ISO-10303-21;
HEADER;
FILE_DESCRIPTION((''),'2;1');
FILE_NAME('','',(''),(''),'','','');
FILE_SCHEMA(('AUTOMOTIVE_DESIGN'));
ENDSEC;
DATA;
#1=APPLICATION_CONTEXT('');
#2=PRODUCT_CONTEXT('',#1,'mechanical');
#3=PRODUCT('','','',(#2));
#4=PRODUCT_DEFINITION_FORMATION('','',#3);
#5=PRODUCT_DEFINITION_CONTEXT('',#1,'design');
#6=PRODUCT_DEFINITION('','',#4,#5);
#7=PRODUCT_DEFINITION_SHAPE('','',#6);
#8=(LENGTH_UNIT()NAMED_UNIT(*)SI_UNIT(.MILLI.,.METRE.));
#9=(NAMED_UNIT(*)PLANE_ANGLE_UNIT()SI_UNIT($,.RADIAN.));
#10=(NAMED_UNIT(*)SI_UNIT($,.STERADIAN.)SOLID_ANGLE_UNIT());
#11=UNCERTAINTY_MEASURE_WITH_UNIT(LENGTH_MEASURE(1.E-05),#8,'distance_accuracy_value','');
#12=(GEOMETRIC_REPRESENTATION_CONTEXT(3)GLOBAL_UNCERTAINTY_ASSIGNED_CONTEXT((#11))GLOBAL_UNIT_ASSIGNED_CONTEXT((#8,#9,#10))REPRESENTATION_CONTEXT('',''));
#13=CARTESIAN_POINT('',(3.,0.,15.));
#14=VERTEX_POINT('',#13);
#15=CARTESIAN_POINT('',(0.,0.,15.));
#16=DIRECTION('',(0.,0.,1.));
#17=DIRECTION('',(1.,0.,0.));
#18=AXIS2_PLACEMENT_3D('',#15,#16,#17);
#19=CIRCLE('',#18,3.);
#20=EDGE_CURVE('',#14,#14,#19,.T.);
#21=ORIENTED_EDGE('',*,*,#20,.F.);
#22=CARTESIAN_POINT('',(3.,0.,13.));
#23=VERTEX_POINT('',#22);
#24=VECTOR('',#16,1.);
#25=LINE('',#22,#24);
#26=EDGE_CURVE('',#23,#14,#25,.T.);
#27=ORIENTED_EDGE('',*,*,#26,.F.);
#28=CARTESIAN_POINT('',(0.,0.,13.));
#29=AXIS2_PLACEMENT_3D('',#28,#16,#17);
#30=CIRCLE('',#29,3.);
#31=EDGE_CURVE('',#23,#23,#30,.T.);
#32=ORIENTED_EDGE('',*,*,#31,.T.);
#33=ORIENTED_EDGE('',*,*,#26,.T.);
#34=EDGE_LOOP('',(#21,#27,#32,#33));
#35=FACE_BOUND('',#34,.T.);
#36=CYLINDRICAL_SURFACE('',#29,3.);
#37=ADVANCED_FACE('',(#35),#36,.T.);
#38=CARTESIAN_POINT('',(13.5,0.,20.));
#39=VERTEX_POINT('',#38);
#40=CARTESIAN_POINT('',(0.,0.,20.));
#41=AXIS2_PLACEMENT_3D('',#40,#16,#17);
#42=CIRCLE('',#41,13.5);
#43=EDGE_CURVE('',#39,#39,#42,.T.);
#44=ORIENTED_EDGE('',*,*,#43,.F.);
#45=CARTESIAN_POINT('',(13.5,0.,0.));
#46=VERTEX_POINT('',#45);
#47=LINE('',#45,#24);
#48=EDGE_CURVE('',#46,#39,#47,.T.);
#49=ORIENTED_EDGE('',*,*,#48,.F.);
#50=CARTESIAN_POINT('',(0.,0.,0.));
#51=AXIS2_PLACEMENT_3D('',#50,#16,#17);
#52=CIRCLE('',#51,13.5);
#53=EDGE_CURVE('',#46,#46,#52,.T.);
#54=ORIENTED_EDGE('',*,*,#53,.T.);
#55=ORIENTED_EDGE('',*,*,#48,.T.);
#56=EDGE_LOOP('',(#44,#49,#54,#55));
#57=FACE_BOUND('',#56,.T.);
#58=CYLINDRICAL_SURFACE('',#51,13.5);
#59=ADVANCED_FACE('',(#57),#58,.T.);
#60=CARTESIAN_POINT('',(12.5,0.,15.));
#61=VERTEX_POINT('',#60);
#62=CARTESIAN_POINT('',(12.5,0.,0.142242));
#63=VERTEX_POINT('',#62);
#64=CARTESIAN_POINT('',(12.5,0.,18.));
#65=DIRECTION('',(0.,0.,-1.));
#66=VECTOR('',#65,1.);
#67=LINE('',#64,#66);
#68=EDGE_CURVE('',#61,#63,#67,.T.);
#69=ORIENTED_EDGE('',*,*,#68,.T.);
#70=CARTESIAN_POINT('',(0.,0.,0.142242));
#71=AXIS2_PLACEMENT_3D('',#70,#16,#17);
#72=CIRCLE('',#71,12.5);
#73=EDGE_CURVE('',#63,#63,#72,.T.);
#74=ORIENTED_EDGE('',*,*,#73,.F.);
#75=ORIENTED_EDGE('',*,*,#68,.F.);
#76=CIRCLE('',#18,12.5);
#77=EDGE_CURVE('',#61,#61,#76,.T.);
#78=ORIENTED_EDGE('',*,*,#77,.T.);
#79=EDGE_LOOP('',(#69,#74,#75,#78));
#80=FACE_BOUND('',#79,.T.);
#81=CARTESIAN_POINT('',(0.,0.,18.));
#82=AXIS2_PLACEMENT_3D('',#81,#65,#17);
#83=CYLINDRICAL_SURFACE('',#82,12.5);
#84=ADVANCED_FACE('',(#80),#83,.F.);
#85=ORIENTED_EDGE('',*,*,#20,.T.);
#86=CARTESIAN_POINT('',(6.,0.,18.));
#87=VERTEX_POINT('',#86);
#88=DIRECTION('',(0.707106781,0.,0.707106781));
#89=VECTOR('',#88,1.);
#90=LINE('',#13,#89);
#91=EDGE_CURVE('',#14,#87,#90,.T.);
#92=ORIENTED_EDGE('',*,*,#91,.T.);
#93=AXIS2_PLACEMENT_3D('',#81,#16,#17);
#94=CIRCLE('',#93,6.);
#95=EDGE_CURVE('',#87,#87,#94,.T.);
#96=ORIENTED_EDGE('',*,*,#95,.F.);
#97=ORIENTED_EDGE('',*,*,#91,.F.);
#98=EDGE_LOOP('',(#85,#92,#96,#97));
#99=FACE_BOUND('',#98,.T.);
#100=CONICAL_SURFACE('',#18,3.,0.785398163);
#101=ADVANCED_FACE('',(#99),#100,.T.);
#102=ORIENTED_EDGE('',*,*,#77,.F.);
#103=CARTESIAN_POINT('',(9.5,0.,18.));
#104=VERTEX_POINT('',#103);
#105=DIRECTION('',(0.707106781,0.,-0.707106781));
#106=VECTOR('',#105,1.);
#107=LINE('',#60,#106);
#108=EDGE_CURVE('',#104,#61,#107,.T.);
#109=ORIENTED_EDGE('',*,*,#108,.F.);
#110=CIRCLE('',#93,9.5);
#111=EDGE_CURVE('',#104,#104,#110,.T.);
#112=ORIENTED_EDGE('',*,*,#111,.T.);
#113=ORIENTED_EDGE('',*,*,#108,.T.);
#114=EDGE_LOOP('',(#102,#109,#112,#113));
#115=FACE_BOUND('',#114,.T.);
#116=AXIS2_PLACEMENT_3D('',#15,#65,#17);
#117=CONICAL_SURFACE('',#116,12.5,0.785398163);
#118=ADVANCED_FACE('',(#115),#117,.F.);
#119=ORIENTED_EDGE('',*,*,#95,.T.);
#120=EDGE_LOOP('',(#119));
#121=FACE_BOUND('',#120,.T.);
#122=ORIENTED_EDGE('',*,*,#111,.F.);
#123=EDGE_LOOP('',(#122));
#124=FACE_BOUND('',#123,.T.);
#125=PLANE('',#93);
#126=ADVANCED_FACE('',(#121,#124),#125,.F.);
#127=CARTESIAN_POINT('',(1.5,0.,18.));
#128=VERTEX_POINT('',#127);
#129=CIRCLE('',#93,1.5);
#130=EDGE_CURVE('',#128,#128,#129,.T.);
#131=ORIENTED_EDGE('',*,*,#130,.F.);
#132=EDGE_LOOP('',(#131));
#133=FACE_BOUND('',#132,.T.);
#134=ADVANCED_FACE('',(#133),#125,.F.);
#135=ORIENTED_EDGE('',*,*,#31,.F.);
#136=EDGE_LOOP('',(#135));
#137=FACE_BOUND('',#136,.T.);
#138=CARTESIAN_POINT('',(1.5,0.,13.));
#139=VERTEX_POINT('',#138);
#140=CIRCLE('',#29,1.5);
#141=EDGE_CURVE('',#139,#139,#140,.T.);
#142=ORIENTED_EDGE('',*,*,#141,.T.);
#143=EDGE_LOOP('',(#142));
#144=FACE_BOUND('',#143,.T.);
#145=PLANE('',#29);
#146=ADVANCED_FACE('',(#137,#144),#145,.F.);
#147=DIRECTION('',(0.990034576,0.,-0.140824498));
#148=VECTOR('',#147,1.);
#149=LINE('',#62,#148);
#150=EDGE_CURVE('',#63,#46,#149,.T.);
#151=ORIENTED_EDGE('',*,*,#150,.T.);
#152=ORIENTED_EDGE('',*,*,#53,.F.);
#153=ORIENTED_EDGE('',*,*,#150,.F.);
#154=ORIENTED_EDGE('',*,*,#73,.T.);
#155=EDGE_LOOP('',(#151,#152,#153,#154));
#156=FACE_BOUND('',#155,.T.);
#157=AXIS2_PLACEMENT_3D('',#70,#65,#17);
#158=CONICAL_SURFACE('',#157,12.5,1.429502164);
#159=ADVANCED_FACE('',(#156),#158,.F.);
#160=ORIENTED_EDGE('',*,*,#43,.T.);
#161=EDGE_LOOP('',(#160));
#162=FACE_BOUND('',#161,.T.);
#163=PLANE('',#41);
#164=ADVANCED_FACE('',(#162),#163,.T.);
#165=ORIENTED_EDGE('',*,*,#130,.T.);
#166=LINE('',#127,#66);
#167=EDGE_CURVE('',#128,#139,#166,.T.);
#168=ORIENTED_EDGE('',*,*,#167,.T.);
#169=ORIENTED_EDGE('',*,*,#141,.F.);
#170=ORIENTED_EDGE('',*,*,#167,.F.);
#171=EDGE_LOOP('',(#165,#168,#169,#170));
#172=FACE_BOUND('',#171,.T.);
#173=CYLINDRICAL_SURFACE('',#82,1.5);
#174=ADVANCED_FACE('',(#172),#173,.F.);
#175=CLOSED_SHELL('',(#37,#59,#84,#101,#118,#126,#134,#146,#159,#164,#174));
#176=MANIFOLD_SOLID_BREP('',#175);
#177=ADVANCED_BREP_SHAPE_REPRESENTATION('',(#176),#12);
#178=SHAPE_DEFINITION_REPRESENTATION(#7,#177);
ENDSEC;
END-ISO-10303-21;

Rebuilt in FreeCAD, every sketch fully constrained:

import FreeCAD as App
import Part
import Sketcher

V = App.Vector


def edges_at(feature, points):
    """Names of the edges that pass closest to the given points."""
    edges = feature.Shape.Edges
    near = lambda p: min(range(len(edges)), key=lambda i: edges[i].distToShape(Part.Vertex(*p))[0])
    return sorted({f"Edge{near(p) + 1}" for p in points})

doc = App.newDocument("Part")
body = doc.addObject("PartDesign::Body", "Body")

# Sketch on XZ plane
sketch1 = body.newObject("Sketcher::SketchObject", "Sketch")
sketch1.AttachmentSupport = (doc.getObject("XZ_Plane"), [""])
sketch1.MapMode = "FlatFace"
sketch1.addGeometry([
    Part.LineSegment(V(13.5, 20, 0), V(0, 20, 0)),  # 0
    Part.LineSegment(V(0, 20, 0), V(0, 18, 0)),  # 1
    Part.LineSegment(V(0, 18, 0), V(1.5, 18, 0)),  # 2
    Part.LineSegment(V(1.5, 18, 0), V(1.5, 13, 0)),  # 3
    Part.LineSegment(V(1.5, 13, 0), V(3, 13, 0)),  # 4
    Part.LineSegment(V(3, 13, 0), V(3, 18, 0)),  # 5
    Part.LineSegment(V(3, 18, 0), V(12.5, 18, 0)),  # 6
    Part.LineSegment(V(12.5, 18, 0), V(12.5, 0.1, 0)),  # 7
    Part.LineSegment(V(12.5, 0.1, 0), V(13.5, 0, 0)),  # 8
    Part.LineSegment(V(13.5, 0, 0), V(13.5, 20, 0)),  # 9
], False)
sketch1.addConstraint([
    Sketcher.Constraint("Coincident", 0, 2, 1, 1),
    Sketcher.Constraint("Coincident", 1, 2, 2, 1),
    Sketcher.Constraint("Coincident", 2, 2, 3, 1),
    Sketcher.Constraint("Coincident", 3, 2, 4, 1),
    Sketcher.Constraint("Coincident", 4, 2, 5, 1),
    Sketcher.Constraint("Coincident", 5, 2, 6, 1),
    Sketcher.Constraint("Coincident", 6, 2, 7, 1),
    Sketcher.Constraint("Coincident", 7, 2, 8, 1),
    Sketcher.Constraint("Coincident", 8, 2, 9, 1),
    Sketcher.Constraint("Coincident", 9, 2, 0, 1),
    Sketcher.Constraint("Horizontal", 0),
    Sketcher.Constraint("Vertical", 1),
    Sketcher.Constraint("Horizontal", 2),
    Sketcher.Constraint("Vertical", 3),
    Sketcher.Constraint("Horizontal", 4),
    Sketcher.Constraint("Vertical", 5),
    Sketcher.Constraint("Horizontal", 6),
    Sketcher.Constraint("Vertical", 7),
    Sketcher.Constraint("Vertical", 9),
    Sketcher.Constraint("PointOnObject", 0, 2, -2),
    Sketcher.Constraint("PointOnObject", 8, 2, -1),
    Sketcher.Constraint("Horizontal", 2, 2, 5, 2),
    Sketcher.Constraint("Equal", 2, 4),
    Sketcher.Constraint("DistanceY", 1, 2, 1, 1, 2.0),
    Sketcher.Constraint("DistanceY", 3, 2, 3, 1, 5.0),
    Sketcher.Constraint("DistanceY", 9, 1, 9, 2, 20.0),
    Sketcher.Constraint("DistanceX", 0, 2, 0, 1, 13.5),
    Sketcher.Constraint("DistanceX", 2, 1, 2, 2, 1.5),
    Sketcher.Constraint("DistanceX", 6, 1, 6, 2, 9.5),
    Sketcher.Constraint("DistanceY", 7, 2, 7, 1, 17.857758),
])
revolution = body.newObject("PartDesign::Revolution", "Revolution")
revolution.Profile = sketch1
revolution.ReferenceAxis = (sketch1, ["V_Axis"])
revolution.Angle = 360
doc.recompute()

chamfer = body.newObject("PartDesign::Chamfer", "Chamfer")
chamfer.Base = (revolution, edges_at(revolution, [(-3, 0, 18), (-12.5, 0, 18)]))
chamfer.Size = 3

doc.recompute()
